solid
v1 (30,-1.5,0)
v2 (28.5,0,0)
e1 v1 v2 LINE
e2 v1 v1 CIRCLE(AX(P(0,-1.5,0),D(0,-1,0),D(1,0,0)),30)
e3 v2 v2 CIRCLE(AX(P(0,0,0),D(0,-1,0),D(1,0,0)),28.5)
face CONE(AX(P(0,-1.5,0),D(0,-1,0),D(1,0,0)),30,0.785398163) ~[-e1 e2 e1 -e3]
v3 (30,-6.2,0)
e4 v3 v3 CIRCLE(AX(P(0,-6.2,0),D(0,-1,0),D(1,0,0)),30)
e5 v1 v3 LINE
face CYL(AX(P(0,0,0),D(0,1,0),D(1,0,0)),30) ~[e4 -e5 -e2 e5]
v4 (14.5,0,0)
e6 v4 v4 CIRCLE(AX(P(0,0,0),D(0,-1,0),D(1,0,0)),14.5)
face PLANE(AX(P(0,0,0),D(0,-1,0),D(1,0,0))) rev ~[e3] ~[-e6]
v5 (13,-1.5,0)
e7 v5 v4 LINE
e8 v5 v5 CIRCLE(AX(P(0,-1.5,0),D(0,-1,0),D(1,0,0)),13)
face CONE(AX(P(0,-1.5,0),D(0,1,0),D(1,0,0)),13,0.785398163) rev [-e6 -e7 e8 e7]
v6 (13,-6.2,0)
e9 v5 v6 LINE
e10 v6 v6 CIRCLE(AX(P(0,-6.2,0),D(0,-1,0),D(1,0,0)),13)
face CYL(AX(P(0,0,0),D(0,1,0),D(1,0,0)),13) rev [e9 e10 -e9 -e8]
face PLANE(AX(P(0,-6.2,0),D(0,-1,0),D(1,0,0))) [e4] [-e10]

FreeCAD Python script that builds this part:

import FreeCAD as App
import Part
import Sketcher


def edges_at(feature, points):
    """Names of the edges that pass closest to the given points."""
    edges = feature.Shape.Edges
    near = lambda p: min(range(len(edges)), key=lambda i: edges[i].distToShape(Part.Vertex(*p))[0])
    return sorted({f"Edge{near(p) + 1}" for p in points})

doc = App.newDocument("Part")
body = doc.addObject("PartDesign::Body", "Body")

sketch1 = body.newObject("Sketcher::SketchObject", "Sketch")
sketch1.AttachmentSupport = (doc.getObject("XZ_Plane"), [""])
sketch1.MapMode = "FlatFace"
sketch1.addGeometry([
    Part.Circle(App.Vector(0, 0, 0), App.Vector(0, 0, 1), 30),
    Part.Circle(App.Vector(0, 0, 0), App.Vector(0, 0, 1), 13),
], False)
sketch1.addConstraint([
    Sketcher.Constraint("Coincident", 0, 3, -1, 1),
    Sketcher.Constraint("Coincident", 1, 3, -1, 1),
    Sketcher.Constraint("Diameter", 0, 60.0),
    Sketcher.Constraint("Diameter", 1, 26.0),
])
pad1 = body.newObject("PartDesign::Pad", "Pad")
pad1.Profile = sketch1
pad1.Length = 6.2
doc.recompute()

chamfer = body.newObject("PartDesign::Chamfer", "Chamfer")
chamfer.Base = (pad1, edges_at(pad1, [(-13, 0, 0), (-30, 0, 0)]))
chamfer.Size = 1.5

doc.recompute()
